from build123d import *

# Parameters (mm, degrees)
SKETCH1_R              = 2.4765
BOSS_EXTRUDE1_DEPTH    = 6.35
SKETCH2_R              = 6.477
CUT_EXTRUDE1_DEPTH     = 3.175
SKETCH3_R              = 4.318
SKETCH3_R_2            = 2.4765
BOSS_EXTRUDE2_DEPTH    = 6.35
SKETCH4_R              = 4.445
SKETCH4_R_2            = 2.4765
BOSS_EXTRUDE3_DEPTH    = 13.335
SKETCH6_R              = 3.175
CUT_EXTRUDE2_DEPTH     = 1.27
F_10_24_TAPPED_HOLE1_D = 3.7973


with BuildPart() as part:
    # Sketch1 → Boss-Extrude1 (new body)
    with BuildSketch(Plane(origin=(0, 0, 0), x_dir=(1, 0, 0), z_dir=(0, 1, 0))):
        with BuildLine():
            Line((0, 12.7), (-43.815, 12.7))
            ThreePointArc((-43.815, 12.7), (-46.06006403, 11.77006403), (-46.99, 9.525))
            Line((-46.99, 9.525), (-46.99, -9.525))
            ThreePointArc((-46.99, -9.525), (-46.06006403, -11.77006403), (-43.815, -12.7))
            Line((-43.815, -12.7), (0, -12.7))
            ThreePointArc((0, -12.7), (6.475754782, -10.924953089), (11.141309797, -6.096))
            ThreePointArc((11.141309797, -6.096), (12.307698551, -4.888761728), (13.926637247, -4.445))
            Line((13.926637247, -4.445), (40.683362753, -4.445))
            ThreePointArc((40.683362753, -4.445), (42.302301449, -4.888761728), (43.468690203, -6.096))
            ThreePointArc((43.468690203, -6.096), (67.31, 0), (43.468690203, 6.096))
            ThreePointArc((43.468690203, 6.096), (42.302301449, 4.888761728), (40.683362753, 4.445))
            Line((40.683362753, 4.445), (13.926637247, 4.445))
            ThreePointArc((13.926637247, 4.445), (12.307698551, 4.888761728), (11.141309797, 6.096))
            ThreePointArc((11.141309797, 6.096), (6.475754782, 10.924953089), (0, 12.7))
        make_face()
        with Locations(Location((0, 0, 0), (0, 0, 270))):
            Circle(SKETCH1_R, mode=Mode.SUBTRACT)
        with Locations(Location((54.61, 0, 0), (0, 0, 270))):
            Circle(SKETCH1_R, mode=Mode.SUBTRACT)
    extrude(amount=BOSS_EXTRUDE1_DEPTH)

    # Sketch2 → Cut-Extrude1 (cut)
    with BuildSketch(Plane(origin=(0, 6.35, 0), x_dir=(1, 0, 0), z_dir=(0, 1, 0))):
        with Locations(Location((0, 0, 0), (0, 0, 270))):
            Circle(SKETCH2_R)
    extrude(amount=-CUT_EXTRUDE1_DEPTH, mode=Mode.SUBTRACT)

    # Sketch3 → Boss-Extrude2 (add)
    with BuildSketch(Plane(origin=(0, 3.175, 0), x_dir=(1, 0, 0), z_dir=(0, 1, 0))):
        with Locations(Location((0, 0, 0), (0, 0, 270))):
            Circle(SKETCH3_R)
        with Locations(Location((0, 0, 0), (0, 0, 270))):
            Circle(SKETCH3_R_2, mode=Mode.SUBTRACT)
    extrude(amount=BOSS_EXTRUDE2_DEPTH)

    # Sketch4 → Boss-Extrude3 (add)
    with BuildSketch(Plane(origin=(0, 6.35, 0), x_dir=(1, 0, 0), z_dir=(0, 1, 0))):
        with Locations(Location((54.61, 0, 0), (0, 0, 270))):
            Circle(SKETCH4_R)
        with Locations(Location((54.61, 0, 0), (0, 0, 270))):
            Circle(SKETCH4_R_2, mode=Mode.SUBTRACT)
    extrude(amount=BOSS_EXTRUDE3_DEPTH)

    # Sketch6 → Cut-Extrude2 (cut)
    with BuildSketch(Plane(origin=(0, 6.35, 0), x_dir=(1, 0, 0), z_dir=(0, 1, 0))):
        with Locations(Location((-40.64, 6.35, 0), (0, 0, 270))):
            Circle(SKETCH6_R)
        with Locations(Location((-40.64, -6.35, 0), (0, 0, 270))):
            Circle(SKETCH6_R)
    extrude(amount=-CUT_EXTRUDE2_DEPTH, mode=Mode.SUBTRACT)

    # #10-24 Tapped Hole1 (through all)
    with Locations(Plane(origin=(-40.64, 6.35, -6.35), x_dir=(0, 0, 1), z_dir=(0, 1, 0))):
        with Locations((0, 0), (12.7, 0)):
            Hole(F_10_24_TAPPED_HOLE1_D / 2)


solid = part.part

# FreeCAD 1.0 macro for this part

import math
import FreeCAD as App
import Part
import Sketcher
from FreeCAD import Vector
Q = App.Units.Quantity

doc = App.newDocument("Part")
body = doc.addObject("PartDesign::Body", "Body")

# Sketch on XZ plane
sketch1 = body.newObject("Sketcher::SketchObject", "Sketch")
sketch1.AttachmentSupport = (doc.getObject("XZ_Plane"), [""])
sketch1.MapMode = "FlatFace"
sketch1.addGeometry([
    Part.LineSegment(Vector(0, -12.7, 0), Vector(-43.815, -12.7, 0)),  # 0
    Part.ArcOfCircle(Part.Circle(Vector(-43.815, -9.525, 0), Vector(0, 0, 1), 3.175), math.radians(-180), math.radians(-90)),  # 1
    Part.LineSegment(Vector(-46.99, -9.525, 0), Vector(-46.99, 9.525, 0)),  # 2
    Part.ArcOfCircle(Part.Circle(Vector(-43.815, 9.525, 0), Vector(0, 0, 1), 3.175), math.radians(90), math.radians(180)),  # 3
    Part.LineSegment(Vector(-43.815, 12.7, 0), Vector(0, 12.7, 0)),  # 4
    Part.ArcOfCircle(Part.Circle(Vector(0, 0, 0), Vector(0, 0, 1), 12.7), math.radians(28.685402), math.radians(90)),  # 5
    Part.ArcOfCircle(Part.Circle(Vector(13.926637, 7.62, 0), Vector(0, 0, 1), 3.175), math.radians(-151.314598), math.radians(-90)),  # 6
    Part.LineSegment(Vector(13.926637, 4.445, 0), Vector(40.683363, 4.445, 0)),  # 7
    Part.ArcOfCircle(Part.Circle(Vector(40.683363, 7.62, 0), Vector(0, 0, 1), 3.175), math.radians(-90), math.radians(-28.685402)),  # 8
    Part.ArcOfCircle(Part.Circle(Vector(54.61, 0, 0), Vector(0, 0, 1), 12.7), math.radians(-151.314598), math.radians(151.314598)),  # 9
    Part.ArcOfCircle(Part.Circle(Vector(40.683363, -7.62, 0), Vector(0, 0, 1), 3.175), math.radians(28.685402), math.radians(90)),  # 10
    Part.LineSegment(Vector(40.683363, -4.445, 0), Vector(13.926637, -4.445, 0)),  # 11
    Part.ArcOfCircle(Part.Circle(Vector(13.926637, -7.62, 0), Vector(0, 0, 1), 3.175), math.radians(90), math.radians(151.314598)),  # 12
    Part.ArcOfCircle(Part.Circle(Vector(0, 0, 0), Vector(0, 0, 1), 12.7), math.radians(-90), math.radians(-28.685402)),  # 13
    Part.Circle(Vector(0, 0, 0), Vector(0, 0, 1), 2.4765),  # 14
    Part.Circle(Vector(54.61, 0, 0), Vector(0, 0, 1), 2.4765),  # 15
], False)
sketch1.addConstraint([
    Sketcher.Constraint("Tangent", 0, 2, 1, 2),
    Sketcher.Constraint("Tangent", 1, 1, 2, 1),
    Sketcher.Constraint("Tangent", 2, 2, 3, 2),
    Sketcher.Constraint("Tangent", 3, 1, 4, 1),
    Sketcher.Constraint("Tangent", 4, 2, 5, 2),
    Sketcher.Constraint("Tangent", 5, 1, 6, 1),
    Sketcher.Constraint("Tangent", 6, 2, 7, 1),
    Sketcher.Constraint("Tangent", 7, 2, 8, 1),
    Sketcher.Constraint("Tangent", 8, 2, 9, 2),
    Sketcher.Constraint("Tangent", 9, 1, 10, 1),
    Sketcher.Constraint("Tangent", 10, 2, 11, 1),
    Sketcher.Constraint("Tangent", 11, 2, 12, 1),
    Sketcher.Constraint("Tangent", 12, 2, 13, 2),
    Sketcher.Constraint("Tangent", 13, 1, 0, 1),
    Sketcher.Constraint("Horizontal", 0),
    Sketcher.Constraint("Vertical", 2),
    Sketcher.Constraint("Horizontal", 4),
    Sketcher.Constraint("Horizontal", 7),
    Sketcher.Constraint("Horizontal", 11),
    Sketcher.Constraint("Coincident", 5, 3, -1, 1),
    Sketcher.Constraint("Coincident", 13, 3, -1, 1),
    Sketcher.Constraint("Coincident", 14, 3, -1, 1),
    Sketcher.Constraint("Coincident", 15, 3, 9, 3),
    Sketcher.Constraint("Equal", 1, 3),
    Sketcher.Constraint("Equal", 3, 6),
    Sketcher.Constraint("Equal", 6, 8),
    Sketcher.Constraint("Equal", 5, 9),
    Sketcher.Constraint("Equal", 8, 10),
    Sketcher.Constraint("Equal", 10, 12),
    Sketcher.Constraint("Equal", 9, 13),
    Sketcher.Constraint("Equal", 14, 15),
    Sketcher.Constraint("Symmetric", 8, 3, 10, 3, -1),
    Sketcher.Constraint("Radius", 5, Q("0.5 in")),
    Sketcher.Constraint("Diameter", 14, Q("0.195 in")),
    Sketcher.Constraint("Radius", 1, Q("0.125 in")),
    Sketcher.Constraint("DistanceY", -1, 1, 6, 3, Q("0.3 in")),
    Sketcher.Constraint("DistanceX", 0, 2, 0, 1, Q("1.725 in")),
    Sketcher.Constraint("DistanceX", -1, 1, 9, 3, Q("2.15 in")),
])
pad1 = body.newObject("PartDesign::Pad", "Pad")
pad1.Profile = sketch1
pad1.Length = Q("0.25 in")
pad1.Reversed = True

# Sketch on XZ plane
sketch2 = body.newObject("Sketcher::SketchObject", "Sketch001")
sketch2.AttachmentSupport = (doc.getObject("XZ_Plane"), [""])
sketch2.MapMode = "FlatFace"
sketch2.AttachmentOffset = App.Placement(Vector(0, 0, -0.25 * 25.4), App.Rotation())
sketch2.addGeometry(Part.Circle(Vector(0, 0, 0), Vector(0, 0, 1), 6.477), False)
sketch2.addConstraint([
    Sketcher.Constraint("Coincident", 0, 3, -1, 1),
    Sketcher.Constraint("Diameter", 0, Q("0.51 in")),
])
pocket1 = body.newObject("PartDesign::Pocket", "Pocket")
pocket1.Profile = sketch2
pocket1.Length = Q("0.125 in")
pocket1.Reversed = True

# Sketch on XZ plane
sketch3 = body.newObject("Sketcher::SketchObject", "Sketch002")
sketch3.AttachmentSupport = (doc.getObject("XZ_Plane"), [""])
sketch3.MapMode = "FlatFace"
sketch3.AttachmentOffset = App.Placement(Vector(0, 0, -0.125 * 25.4), App.Rotation())
sketch3.addGeometry([
    Part.Circle(Vector(0, 0, 0), Vector(0, 0, 1), 4.318),
    Part.Circle(Vector(0, 0, 0), Vector(0, 0, 1), 2.4765),
], False)
sketch3.addConstraint([
    Sketcher.Constraint("Coincident", 0, 3, -1, 1),
    Sketcher.Constraint("Coincident", 1, 3, -1, 1),
    Sketcher.Constraint("Diameter", 0, Q("0.34 in")),
    Sketcher.Constraint("Diameter", 1, Q("0.195 in")),
])
pad2 = body.newObject("PartDesign::Pad", "Pad001")
pad2.Profile = sketch3
pad2.Length = Q("0.25 in")
pad2.Reversed = True

# Sketch on XZ plane
sketch4 = body.newObject("Sketcher::SketchObject", "Sketch003")
sketch4.AttachmentSupport = (doc.getObject("XZ_Plane"), [""])
sketch4.MapMode = "FlatFace"
sketch4.AttachmentOffset = App.Placement(Vector(0, 0, -0.25 * 25.4), App.Rotation())
sketch4.addGeometry([
    Part.Circle(Vector(54.61, 0, 0), Vector(0, 0, 1), 4.445),
    Part.Circle(Vector(54.61, 0, 0), Vector(0, 0, 1), 2.4765),
], False)
sketch4.addConstraint([
    Sketcher.Constraint("Coincident", 1, 3, 0, 3),
    Sketcher.Constraint("PointOnObject", 0, 3, -1),
    Sketcher.Constraint("Diameter", 0, Q("0.35 in")),
    Sketcher.Constraint("Diameter", 1, Q("0.195 in")),
    Sketcher.Constraint("DistanceX", -1, 1, 0, 3, Q("2.15 in")),
])
pad3 = body.newObject("PartDesign::Pad", "Pad002")
pad3.Profile = sketch4
pad3.Length = Q("0.525 in")
pad3.Reversed = True

# Sketch on XZ plane
sketch5 = body.newObject("Sketcher::SketchObject", "Sketch004")
sketch5.AttachmentSupport = (doc.getObject("XZ_Plane"), [""])
sketch5.MapMode = "FlatFace"
sketch5.AttachmentOffset = App.Placement(Vector(0, 0, -0.25 * 25.4), App.Rotation())
sketch5.addGeometry([
    Part.Circle(Vector(-40.64, -6.35, 0), Vector(0, 0, 1), 3.175),
    Part.Circle(Vector(-40.64, 6.35, 0), Vector(0, 0, 1), 3.175),
], False)
sketch5.addConstraint([
    Sketcher.Constraint("Equal", 0, 1),
    Sketcher.Constraint("Symmetric", 0, 3, 1, 3, -1),
    Sketcher.Constraint("Diameter", 0, Q("0.25 in")),
    Sketcher.Constraint("DistanceX", 0, 3, -1, 1, Q("1.6 in")),
    Sketcher.Constraint("DistanceY", 0, 3, 1, 3, Q("0.5 in")),
])
pocket2 = body.newObject("PartDesign::Pocket", "Pocket001")
pocket2.Profile = sketch5
pocket2.Length = Q("0.05 in")
pocket2.Reversed = True

# Sketch on XZ plane
sketch6 = body.newObject("Sketcher::SketchObject", "Sketch005")
sketch6.AttachmentSupport = (doc.getObject("XZ_Plane"), [""])
sketch6.MapMode = "FlatFace"
sketch6.AttachmentOffset = App.Placement(Vector(0, 0, -0.25 * 25.4), App.Rotation())
sketch6.addGeometry([
    Part.Circle(Vector(-40.64, -6.35, 0), Vector(0, 0, 1), 1.89865),
    Part.Circle(Vector(-40.64, 6.35, 0), Vector(0, 0, 1), 1.89865),
], False)
sketch6.addConstraint([
    Sketcher.Constraint("Equal", 0, 1),
    Sketcher.Constraint("Symmetric", 0, 3, 1, 3, -1),
    Sketcher.Constraint("Diameter", 0, Q("0.1495 in")),
    Sketcher.Constraint("DistanceX", 0, 3, -1, 1, Q("1.6 in")),
    Sketcher.Constraint("DistanceY", 0, 3, 1, 3, Q("0.5 in")),
])
doc.recompute()
hole = body.newObject("PartDesign::Hole", "Hole")
hole.Profile = sketch6
hole.ThreadType = "None"
hole.Diameter = Q("0.1495 in")
hole.DepthType = "ThroughAll"
hole.Reversed = True

doc.recompute()
